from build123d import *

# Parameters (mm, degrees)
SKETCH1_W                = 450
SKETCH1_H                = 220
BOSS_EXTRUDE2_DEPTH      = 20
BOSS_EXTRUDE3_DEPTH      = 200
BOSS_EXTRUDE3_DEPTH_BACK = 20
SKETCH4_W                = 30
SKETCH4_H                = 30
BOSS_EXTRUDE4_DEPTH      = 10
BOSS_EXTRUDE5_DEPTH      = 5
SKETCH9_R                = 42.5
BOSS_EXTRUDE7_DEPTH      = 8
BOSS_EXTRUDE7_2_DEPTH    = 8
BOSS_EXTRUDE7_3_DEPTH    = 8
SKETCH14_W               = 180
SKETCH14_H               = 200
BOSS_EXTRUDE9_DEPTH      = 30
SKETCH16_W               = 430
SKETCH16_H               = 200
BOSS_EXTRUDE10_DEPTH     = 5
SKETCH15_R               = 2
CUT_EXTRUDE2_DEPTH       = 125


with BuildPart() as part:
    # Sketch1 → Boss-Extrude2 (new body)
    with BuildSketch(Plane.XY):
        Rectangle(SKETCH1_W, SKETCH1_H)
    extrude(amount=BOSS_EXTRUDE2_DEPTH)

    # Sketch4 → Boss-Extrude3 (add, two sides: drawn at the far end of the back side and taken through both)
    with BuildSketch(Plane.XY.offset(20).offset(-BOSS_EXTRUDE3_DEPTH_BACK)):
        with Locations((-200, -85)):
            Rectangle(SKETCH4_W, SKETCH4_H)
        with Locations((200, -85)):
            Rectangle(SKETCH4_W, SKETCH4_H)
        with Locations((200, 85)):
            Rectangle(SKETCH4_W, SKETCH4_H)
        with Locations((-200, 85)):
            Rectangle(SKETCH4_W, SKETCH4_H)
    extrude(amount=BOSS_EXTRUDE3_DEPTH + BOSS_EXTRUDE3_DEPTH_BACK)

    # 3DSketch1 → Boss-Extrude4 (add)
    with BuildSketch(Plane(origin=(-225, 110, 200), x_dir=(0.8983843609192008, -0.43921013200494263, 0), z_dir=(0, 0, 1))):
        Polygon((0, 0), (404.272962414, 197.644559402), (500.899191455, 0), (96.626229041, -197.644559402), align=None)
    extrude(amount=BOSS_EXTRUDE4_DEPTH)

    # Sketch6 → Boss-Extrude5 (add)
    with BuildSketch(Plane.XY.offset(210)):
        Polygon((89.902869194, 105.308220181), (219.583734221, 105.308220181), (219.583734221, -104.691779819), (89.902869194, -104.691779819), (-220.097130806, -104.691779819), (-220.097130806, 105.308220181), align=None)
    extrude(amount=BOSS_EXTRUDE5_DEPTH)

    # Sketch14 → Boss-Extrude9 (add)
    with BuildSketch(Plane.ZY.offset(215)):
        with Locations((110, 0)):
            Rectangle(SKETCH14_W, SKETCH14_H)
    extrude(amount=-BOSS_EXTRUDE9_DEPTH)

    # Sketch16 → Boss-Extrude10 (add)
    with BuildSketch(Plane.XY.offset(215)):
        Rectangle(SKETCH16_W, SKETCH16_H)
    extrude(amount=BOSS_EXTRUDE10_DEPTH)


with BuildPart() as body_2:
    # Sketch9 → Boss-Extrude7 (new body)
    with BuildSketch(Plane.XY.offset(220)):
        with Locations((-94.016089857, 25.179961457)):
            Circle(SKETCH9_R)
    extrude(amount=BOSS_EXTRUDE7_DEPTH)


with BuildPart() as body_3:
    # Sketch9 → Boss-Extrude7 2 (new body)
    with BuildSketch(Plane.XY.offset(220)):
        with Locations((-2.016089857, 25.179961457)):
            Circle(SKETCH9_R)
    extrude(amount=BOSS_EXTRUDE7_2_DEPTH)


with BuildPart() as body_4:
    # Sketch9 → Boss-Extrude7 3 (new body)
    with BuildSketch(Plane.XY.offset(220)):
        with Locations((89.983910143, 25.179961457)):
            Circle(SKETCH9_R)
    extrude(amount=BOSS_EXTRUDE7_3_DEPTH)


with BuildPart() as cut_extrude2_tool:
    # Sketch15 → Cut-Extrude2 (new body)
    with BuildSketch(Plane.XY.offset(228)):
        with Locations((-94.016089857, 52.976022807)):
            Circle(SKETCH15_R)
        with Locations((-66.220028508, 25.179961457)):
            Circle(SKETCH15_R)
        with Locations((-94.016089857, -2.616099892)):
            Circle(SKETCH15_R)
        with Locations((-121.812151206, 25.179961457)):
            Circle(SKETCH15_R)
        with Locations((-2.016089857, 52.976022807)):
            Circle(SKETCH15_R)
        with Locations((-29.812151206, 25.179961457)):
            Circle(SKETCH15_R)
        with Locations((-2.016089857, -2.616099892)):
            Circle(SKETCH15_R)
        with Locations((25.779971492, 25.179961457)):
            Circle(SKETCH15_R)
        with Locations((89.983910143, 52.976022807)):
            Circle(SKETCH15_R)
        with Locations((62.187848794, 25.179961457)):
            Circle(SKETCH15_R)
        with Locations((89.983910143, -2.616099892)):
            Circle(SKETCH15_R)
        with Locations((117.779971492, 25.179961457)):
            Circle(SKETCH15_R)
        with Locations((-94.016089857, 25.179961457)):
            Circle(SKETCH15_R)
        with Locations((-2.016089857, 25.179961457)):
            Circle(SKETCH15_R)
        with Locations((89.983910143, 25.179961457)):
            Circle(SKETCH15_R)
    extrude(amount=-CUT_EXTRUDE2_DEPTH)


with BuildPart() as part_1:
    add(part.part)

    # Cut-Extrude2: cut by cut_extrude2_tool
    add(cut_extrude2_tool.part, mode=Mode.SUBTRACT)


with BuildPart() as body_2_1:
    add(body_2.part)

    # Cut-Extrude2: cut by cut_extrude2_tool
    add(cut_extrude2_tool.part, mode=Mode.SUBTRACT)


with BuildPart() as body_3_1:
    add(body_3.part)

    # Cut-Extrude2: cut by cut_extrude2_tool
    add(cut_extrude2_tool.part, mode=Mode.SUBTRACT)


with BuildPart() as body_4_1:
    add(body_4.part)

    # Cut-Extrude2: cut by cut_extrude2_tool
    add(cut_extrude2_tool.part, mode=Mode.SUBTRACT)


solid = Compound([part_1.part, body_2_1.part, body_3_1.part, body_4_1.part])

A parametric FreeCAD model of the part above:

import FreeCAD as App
import Part
import Sketcher

doc = App.newDocument("Part")
params = doc.addObject("Spreadsheet::Sheet", "Params")
for row, (alias, value) in enumerate([
    ("sketch1_width", "450 mm"),
    ("sketch1_height", "220 mm"),
    ("pad1_length", "20 mm"),
    ("sketch2_width", "30 mm"),
    ("pad2_length", "200 mm"),
    ("pad2_length2", "20 mm"),
    ("sketch3_width", "450 mm"),
    ("sketch3_height", "220 mm"),
    ("pad3_length", "10 mm"),
    ("sketch4_height", "210 mm"),
    ("pad4_length", "5 mm"),
    ("sketch5_width", "200 mm"),
    ("sketch5_height", "180 mm"),
    ("pad5_length", "30 mm"),
    ("sketch6_width", "430 mm"),
    ("sketch6_height", "200 mm"),
    ("pad6_length", "5 mm"),
    ("sketch7_diameter", "85 mm"),
    ("pad7_length", "8 mm"),
    ("sketch8_diameter", "85 mm"),
    ("pad8_length", "8 mm"),
    ("sketch9_diameter", "85 mm"),
    ("pad9_length", "8 mm"),
    ("sketch10_diameter", "4 mm"),
    ("pad10_length", "125 mm"),
], start=1):
    params.set(f"A{row}", alias)
    params.set(f"B{row}", "=" + value)
    params.setAlias(f"B{row}", alias)

body = doc.addObject("PartDesign::Body", "Body")

# Sketch on XY plane
sketch1 = body.newObject("Sketcher::SketchObject", "Sketch")
sketch1.AttachmentSupport = (doc.getObject("XY_Plane"), [""])
sketch1.MapMode = "FlatFace"
sketch1.addGeometry(Part.LineSegment(App.Vector(-225, 110, 0), App.Vector(-225, -110, 0)), False)
sketch1.addGeometry(Part.LineSegment(App.Vector(-225, -110, 0), App.Vector(225, -110, 0)), False)
sketch1.addGeometry(Part.LineSegment(App.Vector(225, -110, 0), App.Vector(225, 110, 0)), False)
sketch1.addGeometry(Part.LineSegment(App.Vector(225, 110, 0), App.Vector(-225, 110, 0)), False)
sketch1.addConstraint(Sketcher.Constraint("Coincident", 0, 2, 1, 1))
sketch1.addConstraint(Sketcher.Constraint("Coincident", 1, 2, 2, 1))
sketch1.addConstraint(Sketcher.Constraint("Coincident", 2, 2, 3, 1))
sketch1.addConstraint(Sketcher.Constraint("Coincident", 3, 2, 0, 1))
sketch1.addConstraint(Sketcher.Constraint("Vertical", 0))
sketch1.addConstraint(Sketcher.Constraint("Horizontal", 1))
sketch1.addConstraint(Sketcher.Constraint("Vertical", 2))
sketch1.addConstraint(Sketcher.Constraint("Horizontal", 3))
sketch1.addConstraint(Sketcher.Constraint("Symmetric", 0, 2, 2, 2, -1, 1))
sketch1.addConstraint(Sketcher.Constraint("DistanceX", 1, 1, 1, 2, 450.0))
sketch1.addConstraint(Sketcher.Constraint("DistanceY", 0, 2, 0, 1, 220.0))
sketch1.setExpression("Constraints[9]", "Params.sketch1_width")
sketch1.setExpression("Constraints[10]", "Params.sketch1_height")
pad1 = body.newObject("PartDesign::Pad", "Pad")
pad1.Profile = sketch1
pad1.setExpression("Length", "Params.pad1_length")

# Sketch on XY plane
sketch2 = body.newObject("Sketcher::SketchObject", "Sketch001")
sketch2.AttachmentSupport = (doc.getObject("XY_Plane"), [""])
sketch2.MapMode = "FlatFace"
sketch2.AttachmentOffset = App.Placement(App.Vector(0, 0, 20), App.Rotation())
sketch2.addGeometry(Part.LineSegment(App.Vector(-215, -70, 0), App.Vector(-215, -100, 0)), False)
sketch2.addGeometry(Part.LineSegment(App.Vector(-215, -100, 0), App.Vector(-185, -100, 0)), False)
sketch2.addGeometry(Part.LineSegment(App.Vector(-185, -100, 0), App.Vector(-185, -70, 0)), False)
sketch2.addGeometry(Part.LineSegment(App.Vector(-185, -70, 0), App.Vector(-215, -70, 0)), False)
sketch2.addGeometry(Part.LineSegment(App.Vector(185, -70, 0), App.Vector(185, -100, 0)), False)
sketch2.addGeometry(Part.LineSegment(App.Vector(185, -100, 0), App.Vector(215, -100, 0)), False)
sketch2.addGeometry(Part.LineSegment(App.Vector(215, -100, 0), App.Vector(215, -70, 0)), False)
sketch2.addGeometry(Part.LineSegment(App.Vector(215, -70, 0), App.Vector(185, -70, 0)), False)
sketch2.addGeometry(Part.LineSegment(App.Vector(185, 100, 0), App.Vector(185, 70, 0)), False)
sketch2.addGeometry(Part.LineSegment(App.Vector(185, 70, 0), App.Vector(215, 70, 0)), False)
sketch2.addGeometry(Part.LineSegment(App.Vector(215, 70, 0), App.Vector(215, 100, 0)), False)
sketch2.addGeometry(Part.LineSegment(App.Vector(215, 100, 0), App.Vector(185, 100, 0)), False)
sketch2.addGeometry(Part.LineSegment(App.Vector(-215, 100, 0), App.Vector(-215, 70, 0)), False)
sketch2.addGeometry(Part.LineSegment(App.Vector(-215, 70, 0), App.Vector(-185, 70, 0)), False)
sketch2.addGeometry(Part.LineSegment(App.Vector(-185, 70, 0), App.Vector(-185, 100, 0)), False)
sketch2.addGeometry(Part.LineSegment(App.Vector(-185, 100, 0), App.Vector(-215, 100, 0)), False)
sketch2.addConstraint(Sketcher.Constraint("Coincident", 0, 2, 1, 1))
sketch2.addConstraint(Sketcher.Constraint("Coincident", 1, 2, 2, 1))
sketch2.addConstraint(Sketcher.Constraint("Coincident", 2, 2, 3, 1))
sketch2.addConstraint(Sketcher.Constraint("Coincident", 3, 2, 0, 1))
sketch2.addConstraint(Sketcher.Constraint("Coincident", 4, 2, 5, 1))
sketch2.addConstraint(Sketcher.Constraint("Coincident", 5, 2, 6, 1))
sketch2.addConstraint(Sketcher.Constraint("Coincident", 6, 2, 7, 1))
sketch2.addConstraint(Sketcher.Constraint("Coincident", 7, 2, 4, 1))
sketch2.addConstraint(Sketcher.Constraint("Coincident", 8, 2, 9, 1))
sketch2.addConstraint(Sketcher.Constraint("Coincident", 9, 2, 10, 1))
sketch2.addConstraint(Sketcher.Constraint("Coincident", 10, 2, 11, 1))
sketch2.addConstraint(Sketcher.Constraint("Coincident", 11, 2, 8, 1))
sketch2.addConstraint(Sketcher.Constraint("Coincident", 12, 2, 13, 1))
sketch2.addConstraint(Sketcher.Constraint("Coincident", 13, 2, 14, 1))
sketch2.addConstraint(Sketcher.Constraint("Coincident", 14, 2, 15, 1))
sketch2.addConstraint(Sketcher.Constraint("Coincident", 15, 2, 12, 1))
sketch2.addConstraint(Sketcher.Constraint("Vertical", 0))
sketch2.addConstraint(Sketcher.Constraint("Horizontal", 1))
sketch2.addConstraint(Sketcher.Constraint("Vertical", 2))
sketch2.addConstraint(Sketcher.Constraint("Horizontal", 3))
sketch2.addConstraint(Sketcher.Constraint("Vertical", 4))
sketch2.addConstraint(Sketcher.Constraint("Horizontal", 5))
sketch2.addConstraint(Sketcher.Constraint("Vertical", 6))
sketch2.addConstraint(Sketcher.Constraint("Horizontal", 7))
sketch2.addConstraint(Sketcher.Constraint("Vertical", 8))
sketch2.addConstraint(Sketcher.Constraint("Horizontal", 9))
sketch2.addConstraint(Sketcher.Constraint("Vertical", 10))
sketch2.addConstraint(Sketcher.Constraint("Horizontal", 11))
sketch2.addConstraint(Sketcher.Constraint("Vertical", 12))
sketch2.addConstraint(Sketcher.Constraint("Horizontal", 13))
sketch2.addConstraint(Sketcher.Constraint("Vertical", 14))
sketch2.addConstraint(Sketcher.Constraint("Horizontal", 15))
sketch2.addConstraint(Sketcher.Constraint("Symmetric", 2, 2, 8, 2, -1, 1))
sketch2.addConstraint(Sketcher.Constraint("Symmetric", 0, 2, 10, 2, -1, 1))
sketch2.addConstraint(Sketcher.Constraint("Symmetric", 6, 2, 12, 2, -1, 1))
sketch2.addConstraint(Sketcher.Constraint("Symmetric", 4, 2, 14, 2, -1, 1))
sketch2.addConstraint(Sketcher.Constraint("Symmetric", 1, 2, 4, 2, -2))
sketch2.addConstraint(Sketcher.Constraint("Symmetric", 3, 2, 6, 2, -2))
sketch2.addConstraint(Sketcher.Constraint("Equal", 15, 0))
sketch2.addConstraint(Sketcher.Constraint("DistanceX", 1, 1, 1, 2, 30.0))
sketch2.addConstraint(Sketcher.Constraint("DistanceX", 0, 2, -1, 1, 215.0))
sketch2.addConstraint(Sketcher.Constraint("DistanceY", 0, 2, -1, 1, 100.0))
sketch2.setExpression("Constraints[39]", "Params.sketch2_width")
pad2 = body.newObject("PartDesign::Pad", "Pad001")
pad2.Profile = sketch2
pad2.Type = "TwoLengths"
pad2.setExpression("Length", "Params.pad2_length")
pad2.setExpression("Length2", "Params.pad2_length2")

# Sketch on XY plane
sketch3 = body.newObject("Sketcher::SketchObject", "Sketch002")
sketch3.AttachmentSupport = (doc.getObject("XY_Plane"), [""])
sketch3.MapMode = "FlatFace"
sketch3.AttachmentOffset = App.Placement(App.Vector(0, 0, 200), App.Rotation())
sketch3.addGeometry(Part.LineSegment(App.Vector(225, 110, 0), App.Vector(-225, 110, 0)), False)
sketch3.addGeometry(Part.LineSegment(App.Vector(-225, 110, 0), App.Vector(-225, -110, 0)), False)
sketch3.addGeometry(Part.LineSegment(App.Vector(-225, -110, 0), App.Vector(225, -110, 0)), False)
sketch3.addGeometry(Part.LineSegment(App.Vector(225, -110, 0), App.Vector(225, 110, 0)), False)
sketch3.addConstraint(Sketcher.Constraint("Coincident", 0, 2, 1, 1))
sketch3.addConstraint(Sketcher.Constraint("Coincident", 1, 2, 2, 1))
sketch3.addConstraint(Sketcher.Constraint("Coincident", 2, 2, 3, 1))
sketch3.addConstraint(Sketcher.Constraint("Coincident", 3, 2, 0, 1))
sketch3.addConstraint(Sketcher.Constraint("Horizontal", 0))
sketch3.addConstraint(Sketcher.Constraint("Vertical", 1))
sketch3.addConstraint(Sketcher.Constraint("Horizontal", 2))
sketch3.addConstraint(Sketcher.Constraint("Vertical", 3))
sketch3.addConstraint(Sketcher.Constraint("Symmetric", 0, 2, 2, 2, -1, 1))
sketch3.addConstraint(Sketcher.Constraint("DistanceX", 0, 2, 0, 1, 450.0))
sketch3.addConstraint(Sketcher.Constraint("DistanceY", 1, 2, 1, 1, 220.0))
sketch3.setExpression("Constraints[9]", "Params.sketch3_width")
sketch3.setExpression("Constraints[10]", "Params.sketch3_height")
pad3 = body.newObject("PartDesign::Pad", "Pad002")
pad3.Profile = sketch3
pad3.setExpression("Length", "Params.pad3_length")

# Sketch on XY plane
sketch4 = body.newObject("Sketcher::SketchObject", "Sketch003")
sketch4.AttachmentSupport = (doc.getObject("XY_Plane"), [""])
sketch4.MapMode = "FlatFace"
sketch4.AttachmentOffset = App.Placement(App.Vector(0, 0, 210), App.Rotation())
sketch4.addGeometry(Part.LineSegment(App.Vector(220, 105, 0), App.Vector(-220, 105, 0)), False)
sketch4.addGeometry(Part.LineSegment(App.Vector(-220, 105, 0), App.Vector(-220, -105, 0)), False)
sketch4.addGeometry(Part.LineSegment(App.Vector(-220, -105, 0), App.Vector(220, -105, 0)), False)
sketch4.addGeometry(Part.LineSegment(App.Vector(220, -105, 0), App.Vector(220, 105, 0)), False)
sketch4.addConstraint(Sketcher.Constraint("Coincident", 0, 2, 1, 1))
sketch4.addConstraint(Sketcher.Constraint("Coincident", 1, 2, 2, 1))
sketch4.addConstraint(Sketcher.Constraint("Coincident", 2, 2, 3, 1))
sketch4.addConstraint(Sketcher.Constraint("Coincident", 3, 2, 0, 1))
sketch4.addConstraint(Sketcher.Constraint("Horizontal", 0))
sketch4.addConstraint(Sketcher.Constraint("Vertical", 1))
sketch4.addConstraint(Sketcher.Constraint("Horizontal", 2))
sketch4.addConstraint(Sketcher.Constraint("Vertical", 3))
sketch4.addConstraint(Sketcher.Constraint("DistanceY", 1, 2, 1, 1, 210.0))
sketch4.addConstraint(Sketcher.Constraint("DistanceX", 0, 2, 0, 1, 439.680865))
sketch4.addConstraint(Sketcher.Constraint("DistanceX", 0, 2, -1, 1, 220.097131))
sketch4.addConstraint(Sketcher.Constraint("DistanceY", -1, 1, 0, 2, 105.30822))
sketch4.setExpression("Constraints[8]", "Params.sketch4_height")
pad4 = body.newObject("PartDesign::Pad", "Pad003")
pad4.Profile = sketch4
pad4.setExpression("Length", "Params.pad4_length")

# Sketch on YZ plane
sketch5 = body.newObject("Sketcher::SketchObject", "Sketch004")
sketch5.AttachmentSupport = (doc.getObject("YZ_Plane"), [""])
sketch5.MapMode = "FlatFace"
sketch5.AttachmentOffset = App.Placement(App.Vector(0, 0, -215), App.Rotation())
sketch5.addGeometry(Part.LineSegment(App.Vector(100, 20, 0), App.Vector(-100, 20, 0)), False)
sketch5.addGeometry(Part.LineSegment(App.Vector(-100, 20, 0), App.Vector(-100, 200, 0)), False)
sketch5.addGeometry(Part.LineSegment(App.Vector(-100, 200, 0), App.Vector(100, 200, 0)), False)
sketch5.addGeometry(Part.LineSegment(App.Vector(100, 200, 0), App.Vector(100, 20, 0)), False)
sketch5.addConstraint(Sketcher.Constraint("Coincident", 0, 2, 1, 1))
sketch5.addConstraint(Sketcher.Constraint("Coincident", 1, 2, 2, 1))
sketch5.addConstraint(Sketcher.Constraint("Coincident", 2, 2, 3, 1))
sketch5.addConstraint(Sketcher.Constraint("Coincident", 3, 2, 0, 1))
sketch5.addConstraint(Sketcher.Constraint("Horizontal", 0))
sketch5.addConstraint(Sketcher.Constraint("Vertical", 1))
sketch5.addConstraint(Sketcher.Constraint("Horizontal", 2))
sketch5.addConstraint(Sketcher.Constraint("Vertical", 3))
sketch5.addConstraint(Sketcher.Constraint("DistanceX", 0, 2, 0, 1, 200.0))
sketch5.addConstraint(Sketcher.Constraint("DistanceY", 1, 1, 1, 2, 180.0))
sketch5.addConstraint(Sketcher.Constraint("DistanceX", 0, 2, -1, 1, 100.0))
sketch5.addConstraint(Sketcher.Constraint("DistanceY", -1, 1, 0, 2, 20.0))
sketch5.setExpression("Constraints[8]", "Params.sketch5_width")
sketch5.setExpression("Constraints[9]", "Params.sketch5_height")
pad5 = body.newObject("PartDesign::Pad", "Pad004")
pad5.Profile = sketch5
pad5.setExpression("Length", "Params.pad5_length")

# Sketch on XY plane
sketch6 = body.newObject("Sketcher::SketchObject", "Sketch005")
sketch6.AttachmentSupport = (doc.getObject("XY_Plane"), [""])
sketch6.MapMode = "FlatFace"
sketch6.AttachmentOffset = App.Placement(App.Vector(0, 0, 215), App.Rotation())
sketch6.addGeometry(Part.LineSegment(App.Vector(-215, 100, 0), App.Vector(-215, -100, 0)), False)
sketch6.addGeometry(Part.LineSegment(App.Vector(-215, -100, 0), App.Vector(215, -100, 0)), False)
sketch6.addGeometry(Part.LineSegment(App.Vector(215, -100, 0), App.Vector(215, 100, 0)), False)
sketch6.addGeometry(Part.LineSegment(App.Vector(215, 100, 0), App.Vector(-215, 100, 0)), False)
sketch6.addConstraint(Sketcher.Constraint("Coincident", 0, 2, 1, 1))
sketch6.addConstraint(Sketcher.Constraint("Coincident", 1, 2, 2, 1))
sketch6.addConstraint(Sketcher.Constraint("Coincident", 2, 2, 3, 1))
sketch6.addConstraint(Sketcher.Constraint("Coincident", 3, 2, 0, 1))
sketch6.addConstraint(Sketcher.Constraint("Vertical", 0))
sketch6.addConstraint(Sketcher.Constraint("Horizontal", 1))
sketch6.addConstraint(Sketcher.Constraint("Vertical", 2))
sketch6.addConstraint(Sketcher.Constraint("Horizontal", 3))
sketch6.addConstraint(Sketcher.Constraint("Symmetric", 0, 2, 2, 2, -1, 1))
sketch6.addConstraint(Sketcher.Constraint("DistanceX", 1, 1, 1, 2, 430.0))
sketch6.addConstraint(Sketcher.Constraint("DistanceY", 0, 2, 0, 1, 200.0))
sketch6.setExpression("Constraints[9]", "Params.sketch6_width")
sketch6.setExpression("Constraints[10]", "Params.sketch6_height")
pad6 = body.newObject("PartDesign::Pad", "Pad005")
pad6.Profile = sketch6
pad6.setExpression("Length", "Params.pad6_length")
body2 = doc.addObject("PartDesign::Body", "Body001")

# Sketch on XY plane
sketch7 = body2.newObject("Sketcher::SketchObject", "Sketch006")
sketch7.AttachmentSupport = (doc.getObject("XY_Plane001"), [""])
sketch7.MapMode = "FlatFace"
sketch7.AttachmentOffset = App.Placement(App.Vector(0, 0, 220), App.Rotation())
sketch7.addGeometry(Part.Circle(App.Vector(-94, 25, 0), App.Vector(0, 0, 1), 42), False)
sketch7.addConstraint(Sketcher.Constraint("Diameter", 0, 85.0))
sketch7.addConstraint(Sketcher.Constraint("DistanceX", 0, 3, -1, 1, 94.01609))
sketch7.addConstraint(Sketcher.Constraint("DistanceY", -1, 1, 0, 3, 25.179961))
sketch7.setExpression("Constraints[0]", "Params.sketch7_diameter")
pad7 = body2.newObject("PartDesign::Pad", "Pad006")
pad7.Profile = sketch7
pad7.setExpression("Length", "Params.pad7_length")
body3 = doc.addObject("PartDesign::Body", "Body002")

# Sketch on XY plane
sketch8 = body3.newObject("Sketcher::SketchObject", "Sketch007")
sketch8.AttachmentSupport = (doc.getObject("XY_Plane002"), [""])
sketch8.MapMode = "FlatFace"
sketch8.AttachmentOffset = App.Placement(App.Vector(0, 0, 220), App.Rotation())
sketch8.addGeometry(Part.Circle(App.Vector(-2, 25, 0), App.Vector(0, 0, 1), 42), False)
sketch8.addConstraint(Sketcher.Constraint("Diameter", 0, 85.0))
sketch8.addConstraint(Sketcher.Constraint("DistanceX", 0, 3, -1, 1, 2.01609))
sketch8.addConstraint(Sketcher.Constraint("DistanceY", -1, 1, 0, 3, 25.179961))
sketch8.setExpression("Constraints[0]", "Params.sketch8_diameter")
pad8 = body3.newObject("PartDesign::Pad", "Pad007")
pad8.Profile = sketch8
pad8.setExpression("Length", "Params.pad8_length")
body4 = doc.addObject("PartDesign::Body", "Body003")

# Sketch on XY plane
sketch9 = body4.newObject("Sketcher::SketchObject", "Sketch008")
sketch9.AttachmentSupport = (doc.getObject("XY_Plane003"), [""])
sketch9.MapMode = "FlatFace"
sketch9.AttachmentOffset = App.Placement(App.Vector(0, 0, 220), App.Rotation())
sketch9.addGeometry(Part.Circle(App.Vector(90, 25, 0), App.Vector(0, 0, 1), 42), False)
sketch9.addConstraint(Sketcher.Constraint("Diameter", 0, 85.0))
sketch9.addConstraint(Sketcher.Constraint("DistanceX", -1, 1, 0, 3, 89.98391))
sketch9.addConstraint(Sketcher.Constraint("DistanceY", -1, 1, 0, 3, 25.179961))
sketch9.setExpression("Constraints[0]", "Params.sketch9_diameter")
pad9 = body4.newObject("PartDesign::Pad", "Pad008")
pad9.Profile = sketch9
pad9.setExpression("Length", "Params.pad9_length")
body5 = doc.addObject("PartDesign::Body", "Body004")
body5.AllowCompound = True

# Sketch on XY plane
sketch10 = body5.newObject("Sketcher::SketchObject", "Sketch009")
sketch10.AttachmentSupport = (doc.getObject("XY_Plane004"), [""])
sketch10.MapMode = "FlatFace"
sketch10.AttachmentOffset = App.Placement(App.Vector(0, 0, 228), App.Rotation())
sketch10.addGeometry(Part.Circle(App.Vector(-94, 53, 0), App.Vector(0, 0, 1), 2), False)
sketch10.addGeometry(Part.Circle(App.Vector(-66.2, 25.2, 0), App.Vector(0, 0, 1), 2), False)
sketch10.addGeometry(Part.Circle(App.Vector(-94, -2.6, 0), App.Vector(0, 0, 1), 2), False)
sketch10.addGeometry(Part.Circle(App.Vector(-121.8, 25.2, 0), App.Vector(0, 0, 1), 2), False)
sketch10.addGeometry(Part.Circle(App.Vector(-2, 53, 0), App.Vector(0, 0, 1), 2), False)
sketch10.addGeometry(Part.Circle(App.Vector(-29.8, 25.2, 0), App.Vector(0, 0, 1), 2), False)
sketch10.addGeometry(Part.Circle(App.Vector(-2, -2.6, 0), App.Vector(0, 0, 1), 2), False)
sketch10.addGeometry(Part.Circle(App.Vector(25.8, 25.2, 0), App.Vector(0, 0, 1), 2), False)
sketch10.addGeometry(Part.Circle(App.Vector(90, 53, 0), App.Vector(0, 0, 1), 2), False)
sketch10.addGeometry(Part.Circle(App.Vector(62.2, 25.2, 0), App.Vector(0, 0, 1), 2), False)
sketch10.addGeometry(Part.Circle(App.Vector(90, -2.6, 0), App.Vector(0, 0, 1), 2), False)
sketch10.addGeometry(Part.Circle(App.Vector(117.8, 25.2, 0), App.Vector(0, 0, 1), 2), False)
sketch10.addGeometry(Part.Circle(App.Vector(-94, 25.2, 0), App.Vector(0, 0, 1), 2), False)
sketch10.addGeometry(Part.Circle(App.Vector(-2, 25.2, 0), App.Vector(0, 0, 1), 2), False)
sketch10.addGeometry(Part.Circle(App.Vector(90, 25.2, 0), App.Vector(0, 0, 1), 2), False)
sketch10.addConstraint(Sketcher.Constraint("Equal", 0, 1))
sketch10.addConstraint(Sketcher.Constraint("Equal", 1, 2))
sketch10.addConstraint(Sketcher.Constraint("Equal", 2, 3))
sketch10.addConstraint(Sketcher.Constraint("Equal", 3, 4))
sketch10.addConstraint(Sketcher.Constraint("Equal", 4, 5))
sketch10.addConstraint(Sketcher.Constraint("Equal", 5, 6))
sketch10.addConstraint(Sketcher.Constraint("Equal", 6, 7))
sketch10.addConstraint(Sketcher.Constraint("Equal", 7, 8))
sketch10.addConstraint(Sketcher.Constraint("Equal", 8, 9))
sketch10.addConstraint(Sketcher.Constraint("Equal", 9, 10))
sketch10.addConstraint(Sketcher.Constraint("Equal", 10, 11))
sketch10.addConstraint(Sketcher.Constraint("Equal", 11, 12))
sketch10.addConstraint(Sketcher.Constraint("Equal", 12, 13))
sketch10.addConstraint(Sketcher.Constraint("Equal", 13, 14))
sketch10.addConstraint(Sketcher.Constraint("Horizontal", 1, 3, 3, 3))
sketch10.addConstraint(Sketcher.Constraint("Horizontal", 0, 3, 4, 3))
sketch10.addConstraint(Sketcher.Constraint("Horizontal", 3, 3, 5, 3))
sketch10.addConstraint(Sketcher.Constraint("Horizontal", 2, 3, 6, 3))
sketch10.addConstraint(Sketcher.Constraint("Horizontal", 5, 3, 7, 3))
sketch10.addConstraint(Sketcher.Constraint("Horizontal", 4, 3, 8, 3))
sketch10.addConstraint(Sketcher.Constraint("Horizontal", 7, 3, 9, 3))
sketch10.addConstraint(Sketcher.Constraint("Horizontal", 6, 3, 10, 3))
sketch10.addConstraint(Sketcher.Constraint("Horizontal", 9, 3, 11, 3))
sketch10.addConstraint(Sketcher.Constraint("Horizontal", 11, 3, 12, 3))
sketch10.addConstraint(Sketcher.Constraint("Horizontal", 12, 3, 13, 3))
sketch10.addConstraint(Sketcher.Constraint("Horizontal", 13, 3, 14, 3))
sketch10.addConstraint(Sketcher.Constraint("Vertical", 0, 3, 2, 3))
sketch10.addConstraint(Sketcher.Constraint("Vertical", 4, 3, 6, 3))
sketch10.addConstraint(Sketcher.Constraint("Vertical", 8, 3, 10, 3))
sketch10.addConstraint(Sketcher.Constraint("Vertical", 2, 3, 12, 3))
sketch10.addConstraint(Sketcher.Constraint("Vertical", 6, 3, 13, 3))
sketch10.addConstraint(Sketcher.Constraint("Vertical", 10, 3, 14, 3))
sketch10.addConstraint(Sketcher.Constraint("Diameter", 0, 4.0))
sketch10.addConstraint(Sketcher.Constraint("DistanceX", 0, 3, 4, 3, 92.0))
sketch10.addConstraint(Sketcher.Constraint("DistanceX", 3, 3, 5, 3, 92.0))
sketch10.addConstraint(Sketcher.Constraint("DistanceX", 1, 3, 7, 3, 92.0))
sketch10.addConstraint(Sketcher.Constraint("DistanceX", 4, 3, 8, 3, 92.0))
sketch10.addConstraint(Sketcher.Constraint("DistanceX", 5, 3, 9, 3, 92.0))
sketch10.addConstraint(Sketcher.Constraint("DistanceX", 7, 3, 11, 3, 92.0))
sketch10.addConstraint(Sketcher.Constraint("DistanceY", 2, 3, -1, 1, 2.6161))
sketch10.addConstraint(Sketcher.Constraint("DistanceX", 0, 3, -1, 1, 94.01609))
sketch10.addConstraint(Sketcher.Constraint("DistanceX", 1, 3, -1, 1, 66.220029))
sketch10.addConstraint(Sketcher.Constraint("DistanceY", -1, 1, 1, 3, 25.179961))
sketch10.addConstraint(Sketcher.Constraint("DistanceX", 3, 3, -1, 1, 121.812151))
sketch10.addConstraint(Sketcher.Constraint("DistanceY", 1, 3, 0, 3, 27.796061))
sketch10.setExpression("Constraints[32]", "Params.sketch10_diameter")
pad10 = body5.newObject("PartDesign::Pad", "Pad009")
pad10.Profile = sketch10
pad10.setExpression("Length", "Params.pad10_length")
pad10.Reversed = True
doc.recompute()

body6 = doc.addObject("PartDesign::Body", "Body005")
body6.BaseFeature = body5
boolean = body.newObject("PartDesign::Boolean", "Boolean")
boolean.Type = "Cut"
boolean.addObjects([body6])
doc.recompute()

body7 = doc.addObject("PartDesign::Body", "Body006")
body7.BaseFeature = body5
boolean2 = body2.newObject("PartDesign::Boolean", "Boolean001")
boolean2.Type = "Cut"
boolean2.addObjects([body7])
doc.recompute()

body8 = doc.addObject("PartDesign::Body", "Body007")
body8.BaseFeature = body5
boolean3 = body3.newObject("PartDesign::Boolean", "Boolean002")
boolean3.Type = "Cut"
boolean3.addObjects([body8])
doc.recompute()

boolean4 = body4.newObject("PartDesign::Boolean", "Boolean003")
boolean4.Type = "Cut"
boolean4.addObjects([body5])

doc.recompute()
